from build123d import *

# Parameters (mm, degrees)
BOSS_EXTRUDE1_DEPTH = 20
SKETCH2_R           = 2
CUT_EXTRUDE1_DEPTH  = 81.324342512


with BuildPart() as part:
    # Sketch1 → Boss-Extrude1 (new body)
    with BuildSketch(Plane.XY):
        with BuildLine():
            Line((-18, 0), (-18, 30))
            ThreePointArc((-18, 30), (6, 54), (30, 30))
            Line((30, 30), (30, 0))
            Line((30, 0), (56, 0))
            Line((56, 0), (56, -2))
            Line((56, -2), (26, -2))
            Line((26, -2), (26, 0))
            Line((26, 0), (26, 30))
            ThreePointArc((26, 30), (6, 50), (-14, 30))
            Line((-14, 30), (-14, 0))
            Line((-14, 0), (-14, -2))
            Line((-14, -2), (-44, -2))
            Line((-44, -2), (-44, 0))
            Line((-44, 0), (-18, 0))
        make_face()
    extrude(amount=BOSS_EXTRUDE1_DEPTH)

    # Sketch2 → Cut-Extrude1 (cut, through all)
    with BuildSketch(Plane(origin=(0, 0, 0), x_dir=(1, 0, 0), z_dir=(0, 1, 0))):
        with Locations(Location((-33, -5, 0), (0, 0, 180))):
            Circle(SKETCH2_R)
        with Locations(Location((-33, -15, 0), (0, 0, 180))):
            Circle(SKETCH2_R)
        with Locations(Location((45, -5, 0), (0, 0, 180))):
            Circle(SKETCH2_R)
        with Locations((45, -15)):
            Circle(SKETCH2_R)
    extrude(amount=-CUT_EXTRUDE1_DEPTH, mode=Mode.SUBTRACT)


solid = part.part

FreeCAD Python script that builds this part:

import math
import FreeCAD as App
import Part
import Sketcher
from FreeCAD import Vector
Q = App.Units.Quantity

doc = App.newDocument("Part")
body = doc.addObject("PartDesign::Body", "Body")

sketch1 = body.newObject("Sketcher::SketchObject", "Sketch")
sketch1.AttachmentSupport = (doc.getObject("XY_Plane"), [""])
sketch1.MapMode = "FlatFace"
sketch1.addGeometry(Part.LineSegment(Vector(-18, 30, 0), Vector(-18, 0, 0)), False)
sketch1.addGeometry(Part.LineSegment(Vector(-18, 0, 0), Vector(-44, 0, 0)), False)
sketch1.addGeometry(Part.LineSegment(Vector(-44, 0, 0), Vector(-44, -2, 0)), False)
sketch1.addGeometry(Part.LineSegment(Vector(-44, -2, 0), Vector(-14, -2, 0)), False)
sketch1.addGeometry(Part.LineSegment(Vector(-14, -2, 0), Vector(-14, 30, 0)), False)
sketch1.addGeometry(Part.ArcOfCircle(Part.Circle(Vector(6, 30, 0), Vector(0, 0, 1), 20), math.radians(0), math.radians(180)), False)
sketch1.addGeometry(Part.LineSegment(Vector(26, 30, 0), Vector(26, -2, 0)), False)
sketch1.addGeometry(Part.LineSegment(Vector(26, -2, 0), Vector(56, -2, 0)), False)
sketch1.addGeometry(Part.LineSegment(Vector(56, -2, 0), Vector(56, 0, 0)), False)
sketch1.addGeometry(Part.LineSegment(Vector(56, 0, 0), Vector(30, 0, 0)), False)
sketch1.addGeometry(Part.LineSegment(Vector(30, 0, 0), Vector(30, 30, 0)), False)
sketch1.addGeometry(Part.ArcOfCircle(Part.Circle(Vector(6, 30, 0), Vector(0, 0, 1), 24), math.radians(0), math.radians(180)), False)
sketch1.addConstraint(Sketcher.Constraint("Coincident", 0, 2, 1, 1))
sketch1.addConstraint(Sketcher.Constraint("Coincident", 1, 2, 2, 1))
sketch1.addConstraint(Sketcher.Constraint("Coincident", 2, 2, 3, 1))
sketch1.addConstraint(Sketcher.Constraint("Coincident", 3, 2, 4, 1))
sketch1.addConstraint(Sketcher.Constraint("Tangent", 4, 2, 5, 2))
sketch1.addConstraint(Sketcher.Constraint("Tangent", 5, 1, 6, 1))
sketch1.addConstraint(Sketcher.Constraint("Coincident", 6, 2, 7, 1))
sketch1.addConstraint(Sketcher.Constraint("Coincident", 7, 2, 8, 1))
sketch1.addConstraint(Sketcher.Constraint("Coincident", 8, 2, 9, 1))
sketch1.addConstraint(Sketcher.Constraint("Coincident", 9, 2, 10, 1))
sketch1.addConstraint(Sketcher.Constraint("Tangent", 10, 2, 11, 1))
sketch1.addConstraint(Sketcher.Constraint("Tangent", 11, 2, 0, 1))
sketch1.addConstraint(Sketcher.Constraint("Vertical", 0))
sketch1.addConstraint(Sketcher.Constraint("Horizontal", 1))
sketch1.addConstraint(Sketcher.Constraint("Vertical", 2))
sketch1.addConstraint(Sketcher.Constraint("Horizontal", 3))
sketch1.addConstraint(Sketcher.Constraint("Vertical", 4))
sketch1.addConstraint(Sketcher.Constraint("Vertical", 6))
sketch1.addConstraint(Sketcher.Constraint("Horizontal", 7))
sketch1.addConstraint(Sketcher.Constraint("Vertical", 8))
sketch1.addConstraint(Sketcher.Constraint("Horizontal", 9))
sketch1.addConstraint(Sketcher.Constraint("Vertical", 10))
sketch1.addConstraint(Sketcher.Constraint("Coincident", 11, 3, 5, 3))
sketch1.addConstraint(Sketcher.Constraint("PointOnObject", 0, 2, -1))
sketch1.addConstraint(Sketcher.Constraint("PointOnObject", 8, 2, -1))
sketch1.addConstraint(Sketcher.Constraint("Horizontal", 3, 2, 6, 2))
sketch1.addConstraint(Sketcher.Constraint("Equal", 3, 7))
sketch1.addConstraint(Sketcher.Constraint("Equal", 7, 0))
sketch1.addConstraint(Sketcher.Constraint("Radius", 5, Q("20 mm")))
sketch1.addConstraint(Sketcher.Constraint("Radius", 11, Q("24 mm")))
sketch1.addConstraint(Sketcher.Constraint("DistanceX", 1, 2, 1, 1, Q("26 mm")))
sketch1.addConstraint(Sketcher.Constraint("DistanceY", 2, 2, 2, 1, Q("2 mm")))
sketch1.addConstraint(Sketcher.Constraint("DistanceX", -1, 1, 5, 3, Q("6 mm")))
pad1 = body.newObject("PartDesign::Pad", "Pad")
pad1.Profile = sketch1
pad1.Length = 20

sketch2 = body.newObject("Sketcher::SketchObject", "Sketch001")
sketch2.AttachmentSupport = (doc.getObject("XZ_Plane"), [""])
sketch2.MapMode = "FlatFace"
sketch2.addGeometry(Part.Circle(Vector(-33, 5, 0), Vector(0, 0, 1), 2), False)
sketch2.addGeometry(Part.Circle(Vector(-33, 15, 0), Vector(0, 0, 1), 2), False)
sketch2.addGeometry(Part.Circle(Vector(45, 5, 0), Vector(0, 0, 1), 2), False)
sketch2.addGeometry(Part.Circle(Vector(45, 15, 0), Vector(0, 0, 1), 2), False)
sketch2.addConstraint(Sketcher.Constraint("Equal", 0, 1))
sketch2.addConstraint(Sketcher.Constraint("Equal", 1, 2))
sketch2.addConstraint(Sketcher.Constraint("Equal", 2, 3))
sketch2.addConstraint(Sketcher.Constraint("Horizontal", 0, 3, 2, 3))
sketch2.addConstraint(Sketcher.Constraint("Horizontal", 1, 3, 3, 3))
sketch2.addConstraint(Sketcher.Constraint("Vertical", 0, 3, 1, 3))
sketch2.addConstraint(Sketcher.Constraint("Vertical", 2, 3, 3, 3))
sketch2.addConstraint(Sketcher.Constraint("Diameter", 0, Q("4 mm")))
sketch2.addConstraint(Sketcher.Constraint("DistanceX", 0, 3, -1, 1, Q("33 mm")))
sketch2.addConstraint(Sketcher.Constraint("DistanceY", -1, 1, 0, 3, Q("5 mm")))
sketch2.addConstraint(Sketcher.Constraint("DistanceY", -1, 1, 1, 3, Q("15 mm")))
sketch2.addConstraint(Sketcher.Constraint("DistanceX", -1, 1, 2, 3, Q("45 mm")))
pocket1 = body.newObject("PartDesign::Pocket", "Pocket")
pocket1.Profile = sketch2
pocket1.Type = "ThroughAll"
pocket1.Reversed = True

doc.recompute()
